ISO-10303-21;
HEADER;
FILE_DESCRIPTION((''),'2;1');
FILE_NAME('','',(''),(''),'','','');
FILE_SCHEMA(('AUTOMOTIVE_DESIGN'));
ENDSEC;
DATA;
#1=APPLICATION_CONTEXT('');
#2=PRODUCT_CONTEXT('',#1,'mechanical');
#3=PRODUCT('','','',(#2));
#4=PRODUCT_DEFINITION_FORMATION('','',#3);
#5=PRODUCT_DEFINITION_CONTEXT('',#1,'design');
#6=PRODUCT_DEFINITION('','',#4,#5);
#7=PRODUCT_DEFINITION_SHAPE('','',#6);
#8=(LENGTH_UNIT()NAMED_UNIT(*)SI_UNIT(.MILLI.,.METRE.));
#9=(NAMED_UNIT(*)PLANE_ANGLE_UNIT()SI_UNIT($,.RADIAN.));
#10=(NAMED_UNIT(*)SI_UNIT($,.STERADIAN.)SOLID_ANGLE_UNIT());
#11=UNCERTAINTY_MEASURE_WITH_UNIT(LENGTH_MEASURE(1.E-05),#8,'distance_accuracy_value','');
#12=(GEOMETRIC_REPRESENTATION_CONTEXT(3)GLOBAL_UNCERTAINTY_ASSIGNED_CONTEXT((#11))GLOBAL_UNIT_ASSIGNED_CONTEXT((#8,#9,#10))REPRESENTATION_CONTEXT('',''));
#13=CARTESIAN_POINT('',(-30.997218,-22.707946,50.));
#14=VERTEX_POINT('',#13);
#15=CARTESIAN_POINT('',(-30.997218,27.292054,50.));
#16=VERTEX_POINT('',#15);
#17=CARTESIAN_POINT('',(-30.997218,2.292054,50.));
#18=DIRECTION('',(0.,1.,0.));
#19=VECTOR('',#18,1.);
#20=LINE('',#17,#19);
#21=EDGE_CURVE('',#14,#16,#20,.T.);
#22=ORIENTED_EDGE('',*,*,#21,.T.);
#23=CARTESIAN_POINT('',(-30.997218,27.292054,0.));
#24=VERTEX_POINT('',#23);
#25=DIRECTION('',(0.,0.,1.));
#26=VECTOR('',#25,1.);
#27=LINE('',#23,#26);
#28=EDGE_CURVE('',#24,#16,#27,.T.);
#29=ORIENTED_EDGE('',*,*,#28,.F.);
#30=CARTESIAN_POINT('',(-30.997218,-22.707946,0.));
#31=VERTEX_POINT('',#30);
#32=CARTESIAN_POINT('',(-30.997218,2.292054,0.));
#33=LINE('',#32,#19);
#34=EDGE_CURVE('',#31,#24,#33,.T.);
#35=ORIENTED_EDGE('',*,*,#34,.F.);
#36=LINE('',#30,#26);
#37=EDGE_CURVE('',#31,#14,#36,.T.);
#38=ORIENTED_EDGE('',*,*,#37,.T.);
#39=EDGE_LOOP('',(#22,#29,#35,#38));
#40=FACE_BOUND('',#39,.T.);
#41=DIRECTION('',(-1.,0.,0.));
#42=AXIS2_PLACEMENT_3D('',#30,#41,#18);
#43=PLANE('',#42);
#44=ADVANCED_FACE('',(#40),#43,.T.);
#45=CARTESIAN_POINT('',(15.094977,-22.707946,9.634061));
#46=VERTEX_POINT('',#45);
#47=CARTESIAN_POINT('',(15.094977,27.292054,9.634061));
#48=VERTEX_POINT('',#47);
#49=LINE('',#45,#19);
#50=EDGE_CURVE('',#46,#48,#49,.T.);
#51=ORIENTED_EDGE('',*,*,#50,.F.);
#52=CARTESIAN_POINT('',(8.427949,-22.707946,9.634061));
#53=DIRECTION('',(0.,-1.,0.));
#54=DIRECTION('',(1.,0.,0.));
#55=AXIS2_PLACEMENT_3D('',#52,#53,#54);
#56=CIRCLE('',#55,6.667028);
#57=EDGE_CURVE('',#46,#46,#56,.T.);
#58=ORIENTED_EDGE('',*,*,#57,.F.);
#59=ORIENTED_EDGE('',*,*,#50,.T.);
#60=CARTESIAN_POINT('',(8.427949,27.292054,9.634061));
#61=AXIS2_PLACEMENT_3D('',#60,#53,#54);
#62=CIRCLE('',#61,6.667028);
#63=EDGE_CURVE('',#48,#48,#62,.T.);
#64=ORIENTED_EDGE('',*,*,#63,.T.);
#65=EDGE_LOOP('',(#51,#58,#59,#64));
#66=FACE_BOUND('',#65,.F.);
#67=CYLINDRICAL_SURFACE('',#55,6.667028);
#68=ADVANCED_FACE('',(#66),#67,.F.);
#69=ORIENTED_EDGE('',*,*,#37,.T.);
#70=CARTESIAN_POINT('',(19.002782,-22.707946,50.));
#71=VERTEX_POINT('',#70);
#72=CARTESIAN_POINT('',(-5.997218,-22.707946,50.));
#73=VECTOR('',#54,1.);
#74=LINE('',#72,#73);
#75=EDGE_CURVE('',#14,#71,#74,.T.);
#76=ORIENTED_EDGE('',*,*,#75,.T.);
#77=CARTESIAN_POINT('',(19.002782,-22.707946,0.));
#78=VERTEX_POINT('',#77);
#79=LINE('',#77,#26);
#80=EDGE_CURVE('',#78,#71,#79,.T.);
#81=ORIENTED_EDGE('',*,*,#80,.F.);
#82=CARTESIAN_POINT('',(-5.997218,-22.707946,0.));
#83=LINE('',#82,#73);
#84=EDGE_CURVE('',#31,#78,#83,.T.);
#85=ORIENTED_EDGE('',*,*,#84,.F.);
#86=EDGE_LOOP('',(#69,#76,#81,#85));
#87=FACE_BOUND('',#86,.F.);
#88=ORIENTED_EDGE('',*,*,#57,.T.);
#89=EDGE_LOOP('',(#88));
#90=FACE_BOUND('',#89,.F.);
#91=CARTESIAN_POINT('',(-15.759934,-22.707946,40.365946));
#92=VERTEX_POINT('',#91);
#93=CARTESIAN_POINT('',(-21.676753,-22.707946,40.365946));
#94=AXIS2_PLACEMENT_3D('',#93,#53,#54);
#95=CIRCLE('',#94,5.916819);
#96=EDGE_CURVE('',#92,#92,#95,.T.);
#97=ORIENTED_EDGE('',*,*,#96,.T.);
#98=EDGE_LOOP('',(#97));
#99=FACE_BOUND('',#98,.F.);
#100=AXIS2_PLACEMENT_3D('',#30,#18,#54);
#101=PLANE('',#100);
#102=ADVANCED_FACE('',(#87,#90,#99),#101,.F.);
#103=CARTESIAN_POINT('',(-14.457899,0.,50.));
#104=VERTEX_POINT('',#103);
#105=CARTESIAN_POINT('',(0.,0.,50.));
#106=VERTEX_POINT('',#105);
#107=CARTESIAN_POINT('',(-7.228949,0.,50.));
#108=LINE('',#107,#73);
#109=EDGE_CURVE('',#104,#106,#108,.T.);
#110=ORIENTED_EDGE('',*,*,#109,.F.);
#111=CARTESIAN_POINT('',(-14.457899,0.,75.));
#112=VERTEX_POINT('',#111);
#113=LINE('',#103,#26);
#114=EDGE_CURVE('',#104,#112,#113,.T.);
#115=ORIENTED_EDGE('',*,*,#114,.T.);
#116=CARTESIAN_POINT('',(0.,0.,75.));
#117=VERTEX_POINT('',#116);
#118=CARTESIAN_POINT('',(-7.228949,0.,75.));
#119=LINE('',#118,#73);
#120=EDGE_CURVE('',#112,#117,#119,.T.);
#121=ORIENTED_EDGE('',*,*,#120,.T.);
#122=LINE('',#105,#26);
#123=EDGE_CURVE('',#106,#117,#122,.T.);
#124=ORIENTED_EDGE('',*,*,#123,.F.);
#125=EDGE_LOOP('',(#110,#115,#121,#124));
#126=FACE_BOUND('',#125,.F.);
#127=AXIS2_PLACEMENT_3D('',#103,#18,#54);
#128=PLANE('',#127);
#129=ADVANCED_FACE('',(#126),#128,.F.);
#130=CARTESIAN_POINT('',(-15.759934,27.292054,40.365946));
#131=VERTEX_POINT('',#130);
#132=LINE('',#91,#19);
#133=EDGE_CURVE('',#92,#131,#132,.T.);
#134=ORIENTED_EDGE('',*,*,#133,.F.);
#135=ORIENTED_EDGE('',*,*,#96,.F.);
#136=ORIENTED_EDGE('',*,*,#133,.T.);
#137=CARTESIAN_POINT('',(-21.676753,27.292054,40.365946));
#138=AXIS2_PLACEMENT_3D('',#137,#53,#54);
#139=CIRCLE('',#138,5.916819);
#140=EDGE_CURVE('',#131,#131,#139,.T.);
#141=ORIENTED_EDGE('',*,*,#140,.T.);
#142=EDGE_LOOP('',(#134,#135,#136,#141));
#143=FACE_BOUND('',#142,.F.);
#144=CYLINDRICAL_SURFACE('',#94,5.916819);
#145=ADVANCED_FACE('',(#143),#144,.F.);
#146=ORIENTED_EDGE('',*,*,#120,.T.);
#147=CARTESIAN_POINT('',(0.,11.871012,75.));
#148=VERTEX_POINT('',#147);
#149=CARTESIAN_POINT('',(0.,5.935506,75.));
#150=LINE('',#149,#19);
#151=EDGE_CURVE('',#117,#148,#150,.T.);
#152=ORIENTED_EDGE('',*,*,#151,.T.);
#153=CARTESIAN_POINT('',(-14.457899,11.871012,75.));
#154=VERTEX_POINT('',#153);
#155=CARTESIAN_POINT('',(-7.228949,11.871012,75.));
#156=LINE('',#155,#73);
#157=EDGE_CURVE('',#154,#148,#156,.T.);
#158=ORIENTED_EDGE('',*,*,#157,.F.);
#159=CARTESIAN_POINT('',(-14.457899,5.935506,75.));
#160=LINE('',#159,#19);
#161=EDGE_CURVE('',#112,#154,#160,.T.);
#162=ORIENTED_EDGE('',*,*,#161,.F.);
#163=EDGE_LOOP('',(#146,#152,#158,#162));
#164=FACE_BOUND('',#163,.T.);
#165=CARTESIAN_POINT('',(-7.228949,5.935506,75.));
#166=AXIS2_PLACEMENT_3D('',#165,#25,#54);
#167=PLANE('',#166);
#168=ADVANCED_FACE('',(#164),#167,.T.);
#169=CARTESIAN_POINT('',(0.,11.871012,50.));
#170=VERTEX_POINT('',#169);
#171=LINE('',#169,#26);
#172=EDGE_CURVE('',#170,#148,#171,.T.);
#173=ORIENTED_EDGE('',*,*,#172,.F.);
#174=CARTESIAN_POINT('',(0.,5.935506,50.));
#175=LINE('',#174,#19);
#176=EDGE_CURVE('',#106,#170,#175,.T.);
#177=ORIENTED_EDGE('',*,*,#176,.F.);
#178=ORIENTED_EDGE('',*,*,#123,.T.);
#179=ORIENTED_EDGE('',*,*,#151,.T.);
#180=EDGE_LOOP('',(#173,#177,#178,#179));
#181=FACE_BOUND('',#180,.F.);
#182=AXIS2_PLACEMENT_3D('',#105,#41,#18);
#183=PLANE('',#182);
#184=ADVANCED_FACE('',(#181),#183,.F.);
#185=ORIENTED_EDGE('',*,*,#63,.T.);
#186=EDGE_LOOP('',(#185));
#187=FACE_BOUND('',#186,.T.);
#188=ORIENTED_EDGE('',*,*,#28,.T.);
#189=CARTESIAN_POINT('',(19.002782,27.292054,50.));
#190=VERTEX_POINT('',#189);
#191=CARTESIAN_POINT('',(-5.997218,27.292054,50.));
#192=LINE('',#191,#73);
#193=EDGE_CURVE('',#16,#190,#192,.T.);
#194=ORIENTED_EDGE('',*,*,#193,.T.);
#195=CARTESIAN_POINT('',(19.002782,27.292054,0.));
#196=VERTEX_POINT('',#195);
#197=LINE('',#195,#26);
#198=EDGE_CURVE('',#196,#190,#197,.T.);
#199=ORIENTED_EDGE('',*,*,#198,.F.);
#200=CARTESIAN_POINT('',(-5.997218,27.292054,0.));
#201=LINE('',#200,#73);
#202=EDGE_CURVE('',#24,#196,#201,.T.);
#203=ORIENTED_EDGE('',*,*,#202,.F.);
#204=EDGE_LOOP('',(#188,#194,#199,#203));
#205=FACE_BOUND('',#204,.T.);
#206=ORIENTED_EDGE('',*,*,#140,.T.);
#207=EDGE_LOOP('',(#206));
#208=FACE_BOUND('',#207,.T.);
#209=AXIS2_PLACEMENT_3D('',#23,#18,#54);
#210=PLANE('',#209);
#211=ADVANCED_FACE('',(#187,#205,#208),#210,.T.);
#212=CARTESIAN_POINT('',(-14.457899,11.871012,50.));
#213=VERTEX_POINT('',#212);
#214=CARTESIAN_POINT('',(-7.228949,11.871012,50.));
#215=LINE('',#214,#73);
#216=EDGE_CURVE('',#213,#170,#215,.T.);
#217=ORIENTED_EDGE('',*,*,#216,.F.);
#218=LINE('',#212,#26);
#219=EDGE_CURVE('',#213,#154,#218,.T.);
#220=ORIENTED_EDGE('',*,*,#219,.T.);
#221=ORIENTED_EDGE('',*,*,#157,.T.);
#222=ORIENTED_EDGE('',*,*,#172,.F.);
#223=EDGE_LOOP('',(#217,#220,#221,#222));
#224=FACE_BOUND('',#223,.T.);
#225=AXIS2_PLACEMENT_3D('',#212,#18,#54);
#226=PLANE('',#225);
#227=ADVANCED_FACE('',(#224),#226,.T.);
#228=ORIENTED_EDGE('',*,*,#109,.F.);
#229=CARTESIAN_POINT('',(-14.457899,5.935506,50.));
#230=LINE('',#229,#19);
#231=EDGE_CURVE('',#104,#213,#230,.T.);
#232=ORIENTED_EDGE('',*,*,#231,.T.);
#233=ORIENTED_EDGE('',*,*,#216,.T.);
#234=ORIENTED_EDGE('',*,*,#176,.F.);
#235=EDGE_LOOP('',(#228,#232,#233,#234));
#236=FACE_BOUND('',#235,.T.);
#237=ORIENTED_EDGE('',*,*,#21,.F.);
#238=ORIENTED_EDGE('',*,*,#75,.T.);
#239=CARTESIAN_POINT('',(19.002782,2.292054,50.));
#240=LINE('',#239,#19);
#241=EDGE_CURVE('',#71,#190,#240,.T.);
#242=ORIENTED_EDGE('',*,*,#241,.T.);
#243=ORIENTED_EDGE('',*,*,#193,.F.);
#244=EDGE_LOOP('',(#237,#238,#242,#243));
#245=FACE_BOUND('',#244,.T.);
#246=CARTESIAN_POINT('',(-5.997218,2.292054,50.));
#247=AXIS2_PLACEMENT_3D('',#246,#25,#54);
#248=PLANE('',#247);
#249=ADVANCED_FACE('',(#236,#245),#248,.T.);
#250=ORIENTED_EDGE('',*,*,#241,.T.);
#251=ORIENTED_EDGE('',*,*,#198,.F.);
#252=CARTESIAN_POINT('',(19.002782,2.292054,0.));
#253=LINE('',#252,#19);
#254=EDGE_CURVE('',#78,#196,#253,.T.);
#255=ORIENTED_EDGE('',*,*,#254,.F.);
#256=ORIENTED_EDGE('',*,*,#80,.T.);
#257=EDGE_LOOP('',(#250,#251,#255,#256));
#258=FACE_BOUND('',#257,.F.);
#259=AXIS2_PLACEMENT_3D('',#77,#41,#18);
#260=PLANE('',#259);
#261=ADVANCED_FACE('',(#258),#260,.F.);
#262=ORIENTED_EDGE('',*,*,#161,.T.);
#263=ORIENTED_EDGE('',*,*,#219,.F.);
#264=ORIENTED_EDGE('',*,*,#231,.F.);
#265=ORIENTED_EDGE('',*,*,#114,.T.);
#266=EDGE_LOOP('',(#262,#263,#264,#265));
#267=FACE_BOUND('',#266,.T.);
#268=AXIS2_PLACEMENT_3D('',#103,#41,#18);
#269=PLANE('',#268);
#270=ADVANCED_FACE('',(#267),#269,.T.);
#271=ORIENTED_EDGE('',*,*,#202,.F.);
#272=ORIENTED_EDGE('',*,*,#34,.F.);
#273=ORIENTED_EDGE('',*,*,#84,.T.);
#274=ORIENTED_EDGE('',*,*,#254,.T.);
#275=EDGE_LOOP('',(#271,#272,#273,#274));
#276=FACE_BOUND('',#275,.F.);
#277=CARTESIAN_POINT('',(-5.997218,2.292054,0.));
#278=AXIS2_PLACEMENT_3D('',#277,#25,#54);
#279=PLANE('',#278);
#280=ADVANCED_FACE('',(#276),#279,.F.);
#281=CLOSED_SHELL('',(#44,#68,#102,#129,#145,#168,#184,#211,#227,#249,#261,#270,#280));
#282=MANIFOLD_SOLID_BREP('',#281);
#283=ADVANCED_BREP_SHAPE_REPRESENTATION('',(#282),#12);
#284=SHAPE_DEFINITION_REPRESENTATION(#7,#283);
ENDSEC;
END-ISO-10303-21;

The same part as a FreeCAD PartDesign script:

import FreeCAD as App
import Part
import Sketcher
Q = App.Units.Quantity


def add_polygon(sketch, points):
    """Adds a closed chain of lines whose ends are joined by coincident constraints."""
    first, n = sketch.GeometryCount, len(points)
    for a, b in zip(points, points[1:] + points[:1]):
        sketch.addGeometry(Part.LineSegment(App.Vector(*a, 0), App.Vector(*b, 0)), False)
    for i in range(n):
        sketch.addConstraint(Sketcher.Constraint("Coincident", first + i, 2, first + (i + 1) % n, 1))

doc = App.newDocument("Part")
body = doc.addObject("PartDesign::Body", "Body")

sketch1 = body.newObject("Sketcher::SketchObject", "Sketch")
sketch1.AttachmentSupport = (doc.getObject("XY_Plane"), [""])
sketch1.MapMode = "FlatFace"
add_polygon(sketch1, [(-31, 27), (-31, -23), (19, -23), (19, 27)])
sketch1.addConstraint(Sketcher.Constraint("Vertical", 0))
sketch1.addConstraint(Sketcher.Constraint("Horizontal", 1))
sketch1.addConstraint(Sketcher.Constraint("Vertical", 2))
sketch1.addConstraint(Sketcher.Constraint("Horizontal", 3))
sketch1.addConstraint(Sketcher.Constraint("Equal", 3, 0))
sketch1.addConstraint(Sketcher.Constraint("DistanceX", 1, 1, 1, 2, Q("50 mm")))
sketch1.addConstraint(Sketcher.Constraint("DistanceX", 0, 2, -1, 1, Q("30.997218 mm")))
sketch1.addConstraint(Sketcher.Constraint("DistanceY", 0, 2, -1, 1, Q("22.707946 mm")))
pad1 = body.newObject("PartDesign::Pad", "Pad")
pad1.Profile = sketch1
pad1.Length = 50

sketch2 = body.newObject("Sketcher::SketchObject", "Sketch001")
sketch2.AttachmentSupport = (doc.getObject("XZ_Plane"), [""])
sketch2.MapMode = "FlatFace"
sketch2.AttachmentOffset = App.Placement(App.Vector(0, 0, 22.707946), App.Rotation())
sketch2.addGeometry(Part.Circle(App.Vector(-22, 40, 0), App.Vector(0, 0, 1), 6), False)
sketch2.addGeometry(Part.Circle(App.Vector(8, 10, 0), App.Vector(0, 0, 1), 7), False)
sketch2.addConstraint(Sketcher.Constraint("Diameter", 0, Q("11.833638 mm")))
sketch2.addConstraint(Sketcher.Constraint("Diameter", 1, Q("13.334056 mm")))
sketch2.addConstraint(Sketcher.Constraint("DistanceX", -1, 1, 1, 3, Q("8.427949 mm")))
sketch2.addConstraint(Sketcher.Constraint("DistanceY", -1, 1, 1, 3, Q("9.634061 mm")))
sketch2.addConstraint(Sketcher.Constraint("DistanceX", 0, 3, -1, 1, Q("21.676753 mm")))
sketch2.addConstraint(Sketcher.Constraint("DistanceY", -1, 1, 0, 3, Q("40.365946 mm")))
pocket1 = body.newObject("PartDesign::Pocket", "Pocket")
pocket1.Profile = sketch2
pocket1.Type = "ThroughAll"

sketch3 = body.newObject("Sketcher::SketchObject", "Sketch002")
sketch3.AttachmentSupport = (doc.getObject("XY_Plane"), [""])
sketch3.MapMode = "FlatFace"
sketch3.AttachmentOffset = App.Placement(App.Vector(0, 0, 50), App.Rotation())
add_polygon(sketch3, [(-14, 12), (-14, 0), (0, 0), (0, 12)])
sketch3.addConstraint(Sketcher.Constraint("Vertical", 0))
sketch3.addConstraint(Sketcher.Constraint("Horizontal", 1))
sketch3.addConstraint(Sketcher.Constraint("Vertical", 2))
sketch3.addConstraint(Sketcher.Constraint("Horizontal", 3))
sketch3.addConstraint(Sketcher.Constraint("Coincident", 1, 2, -1, 1))
sketch3.addConstraint(Sketcher.Constraint("DistanceX", 1, 1, 1, 2, Q("14.457899 mm")))
sketch3.addConstraint(Sketcher.Constraint("DistanceY", 0, 2, 0, 1, Q("11.871012 mm")))
pad2 = body.newObject("PartDesign::Pad", "Pad001")
pad2.Profile = sketch3
pad2.Length = 25

doc.recompute()
